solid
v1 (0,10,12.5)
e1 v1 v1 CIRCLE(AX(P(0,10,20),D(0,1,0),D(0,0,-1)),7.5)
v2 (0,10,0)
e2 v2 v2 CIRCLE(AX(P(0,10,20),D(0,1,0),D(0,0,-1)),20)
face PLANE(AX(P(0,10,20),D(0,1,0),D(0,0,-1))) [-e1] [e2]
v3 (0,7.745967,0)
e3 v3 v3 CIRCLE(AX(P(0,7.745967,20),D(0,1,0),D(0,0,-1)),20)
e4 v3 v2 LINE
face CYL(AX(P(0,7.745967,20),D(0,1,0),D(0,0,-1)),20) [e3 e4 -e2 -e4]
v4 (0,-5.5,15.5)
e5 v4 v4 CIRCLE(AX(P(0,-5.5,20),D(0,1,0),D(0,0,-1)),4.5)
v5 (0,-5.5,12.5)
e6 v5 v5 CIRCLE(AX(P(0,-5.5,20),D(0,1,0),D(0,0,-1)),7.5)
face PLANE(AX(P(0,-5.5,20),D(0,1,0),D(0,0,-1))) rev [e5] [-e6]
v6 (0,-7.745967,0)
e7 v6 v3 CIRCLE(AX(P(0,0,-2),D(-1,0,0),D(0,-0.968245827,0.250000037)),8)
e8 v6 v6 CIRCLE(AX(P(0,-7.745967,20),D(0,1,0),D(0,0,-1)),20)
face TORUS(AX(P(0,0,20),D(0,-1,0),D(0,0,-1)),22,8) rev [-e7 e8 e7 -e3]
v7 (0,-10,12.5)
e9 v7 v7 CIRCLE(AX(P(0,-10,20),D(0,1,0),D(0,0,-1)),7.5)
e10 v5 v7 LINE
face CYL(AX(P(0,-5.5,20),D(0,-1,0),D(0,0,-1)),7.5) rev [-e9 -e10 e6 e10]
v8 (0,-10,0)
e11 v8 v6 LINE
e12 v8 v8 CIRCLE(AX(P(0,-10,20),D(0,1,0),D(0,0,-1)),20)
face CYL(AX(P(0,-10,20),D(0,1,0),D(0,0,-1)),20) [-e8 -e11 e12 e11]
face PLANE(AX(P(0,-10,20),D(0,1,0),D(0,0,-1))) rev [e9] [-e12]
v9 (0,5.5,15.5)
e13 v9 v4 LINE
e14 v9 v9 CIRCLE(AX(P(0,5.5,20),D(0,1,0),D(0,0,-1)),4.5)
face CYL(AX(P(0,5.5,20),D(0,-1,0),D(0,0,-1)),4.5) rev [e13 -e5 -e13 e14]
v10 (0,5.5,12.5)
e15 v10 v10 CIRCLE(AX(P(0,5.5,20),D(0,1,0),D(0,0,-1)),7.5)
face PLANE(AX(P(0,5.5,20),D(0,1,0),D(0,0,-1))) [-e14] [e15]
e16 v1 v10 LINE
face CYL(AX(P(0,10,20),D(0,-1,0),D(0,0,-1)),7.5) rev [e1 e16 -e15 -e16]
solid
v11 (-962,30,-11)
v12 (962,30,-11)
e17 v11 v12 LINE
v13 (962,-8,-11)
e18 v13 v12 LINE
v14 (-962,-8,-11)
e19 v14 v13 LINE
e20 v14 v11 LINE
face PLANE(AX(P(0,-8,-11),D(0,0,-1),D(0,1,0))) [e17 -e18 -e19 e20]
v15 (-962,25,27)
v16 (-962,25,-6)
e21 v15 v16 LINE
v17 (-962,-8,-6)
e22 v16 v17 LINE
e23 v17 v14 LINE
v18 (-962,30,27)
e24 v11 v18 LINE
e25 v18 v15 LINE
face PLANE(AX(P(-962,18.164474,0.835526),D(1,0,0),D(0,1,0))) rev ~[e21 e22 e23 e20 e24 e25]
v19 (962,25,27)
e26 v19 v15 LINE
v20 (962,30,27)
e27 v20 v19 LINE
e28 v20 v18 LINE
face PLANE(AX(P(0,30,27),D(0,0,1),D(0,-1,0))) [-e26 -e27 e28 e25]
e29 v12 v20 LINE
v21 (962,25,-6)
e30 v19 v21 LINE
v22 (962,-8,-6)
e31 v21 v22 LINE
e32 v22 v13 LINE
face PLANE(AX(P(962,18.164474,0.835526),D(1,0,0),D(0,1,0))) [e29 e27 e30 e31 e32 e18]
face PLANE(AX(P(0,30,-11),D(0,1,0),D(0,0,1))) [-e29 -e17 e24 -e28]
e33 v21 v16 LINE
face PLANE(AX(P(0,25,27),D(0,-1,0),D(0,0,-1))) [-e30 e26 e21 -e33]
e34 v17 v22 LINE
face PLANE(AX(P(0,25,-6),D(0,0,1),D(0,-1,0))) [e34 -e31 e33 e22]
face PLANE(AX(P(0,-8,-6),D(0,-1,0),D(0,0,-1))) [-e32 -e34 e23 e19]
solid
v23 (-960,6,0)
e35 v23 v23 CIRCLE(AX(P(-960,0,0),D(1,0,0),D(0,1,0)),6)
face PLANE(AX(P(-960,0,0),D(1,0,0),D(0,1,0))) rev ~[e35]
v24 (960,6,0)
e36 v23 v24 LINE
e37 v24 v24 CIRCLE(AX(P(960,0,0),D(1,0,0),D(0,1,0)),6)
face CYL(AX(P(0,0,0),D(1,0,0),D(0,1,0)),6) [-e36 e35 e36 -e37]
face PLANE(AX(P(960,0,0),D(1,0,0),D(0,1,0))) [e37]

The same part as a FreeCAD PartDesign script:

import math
import FreeCAD as App
import Part
import Sketcher
Q = App.Units.Quantity

doc = App.newDocument("Part")
body = doc.addObject("PartDesign::Body", "Body")

# Sketch on YZ plane
sketch1 = body.newObject("Sketcher::SketchObject", "Sketch")
sketch1.AttachmentSupport = (doc.getObject("YZ_Plane"), [""])
sketch1.MapMode = "FlatFace"
sketch1.addGeometry(Part.Circle(App.Vector(0, 0, 0), App.Vector(0, 0, 1), 6), False)
sketch1.addConstraint(Sketcher.Constraint("Coincident", 0, 3, -1, 1))
sketch1.addConstraint(Sketcher.Constraint("Diameter", 0, Q("12 mm")))
pad1 = body.newObject("PartDesign::Pad", "Pad")
pad1.Profile = sketch1
pad1.Length = 1920
pad1.Midplane = True
body2 = doc.addObject("PartDesign::Body", "Body001")

# Sketch on YZ plane
sketch2 = body2.newObject("Sketcher::SketchObject", "Sketch001")
sketch2.AttachmentSupport = (doc.getObject("YZ_Plane001"), [""])
sketch2.MapMode = "FlatFace"
sketch2.addGeometry(Part.LineSegment(App.Vector(5.5, 15.5, 0), App.Vector(-5.5, 15.5, 0)), False)
sketch2.addGeometry(Part.LineSegment(App.Vector(-5.5, 15.5, 0), App.Vector(-5.5, 12.5, 0)), False)
sketch2.addGeometry(Part.LineSegment(App.Vector(-5.5, 12.5, 0), App.Vector(-10, 12.5, 0)), False)
sketch2.addGeometry(Part.LineSegment(App.Vector(-10, 12.5, 0), App.Vector(-10, 0, 0)), False)
sketch2.addGeometry(Part.LineSegment(App.Vector(-10, 0, 0), App.Vector(-7.7, 0, 0)), False)
sketch2.addGeometry(Part.ArcOfCircle(Part.Circle(App.Vector(0, -2, 0), App.Vector(0, 0, 1), 8), math.radians(14), math.radians(166)), False)
sketch2.addGeometry(Part.LineSegment(App.Vector(7.7, 0, 0), App.Vector(10, 0, 0)), False)
sketch2.addGeometry(Part.LineSegment(App.Vector(10, 0, 0), App.Vector(10, 12.5, 0)), False)
sketch2.addGeometry(Part.LineSegment(App.Vector(10, 12.5, 0), App.Vector(5.5, 12.5, 0)), False)
sketch2.addGeometry(Part.LineSegment(App.Vector(5.5, 12.5, 0), App.Vector(5.5, 15.5, 0)), False)
sketch2.addGeometry(Part.LineSegment(App.Vector(-10, 20, 0), App.Vector(10, 20, 0)), True)  # axis
sketch2.addConstraint(Sketcher.Constraint("Coincident", 0, 2, 1, 1))
sketch2.addConstraint(Sketcher.Constraint("Coincident", 1, 2, 2, 1))
sketch2.addConstraint(Sketcher.Constraint("Coincident", 2, 2, 3, 1))
sketch2.addConstraint(Sketcher.Constraint("Coincident", 3, 2, 4, 1))
sketch2.addConstraint(Sketcher.Constraint("Coincident", 4, 2, 5, 2))
sketch2.addConstraint(Sketcher.Constraint("Coincident", 5, 1, 6, 1))
sketch2.addConstraint(Sketcher.Constraint("Coincident", 6, 2, 7, 1))
sketch2.addConstraint(Sketcher.Constraint("Coincident", 7, 2, 8, 1))
sketch2.addConstraint(Sketcher.Constraint("Coincident", 8, 2, 9, 1))
sketch2.addConstraint(Sketcher.Constraint("Coincident", 9, 2, 0, 1))
sketch2.addConstraint(Sketcher.Constraint("Horizontal", 0))
sketch2.addConstraint(Sketcher.Constraint("Vertical", 1))
sketch2.addConstraint(Sketcher.Constraint("Horizontal", 2))
sketch2.addConstraint(Sketcher.Constraint("Vertical", 3))
sketch2.addConstraint(Sketcher.Constraint("Horizontal", 4))
sketch2.addConstraint(Sketcher.Constraint("Horizontal", 6))
sketch2.addConstraint(Sketcher.Constraint("Vertical", 7))
sketch2.addConstraint(Sketcher.Constraint("Horizontal", 8))
sketch2.addConstraint(Sketcher.Constraint("Vertical", 9))
sketch2.addConstraint(Sketcher.Constraint("Horizontal", 10))
sketch2.addConstraint(Sketcher.Constraint("Symmetric", 4, 2, 5, 1, -1, 1))
sketch2.addConstraint(Sketcher.Constraint("Symmetric", 3, 2, 6, 2, -2))
sketch2.addConstraint(Sketcher.Constraint("Symmetric", 1, 2, 8, 2, -2))
sketch2.addConstraint(Sketcher.Constraint("Vertical", 3, 2, 10, 1))
sketch2.addConstraint(Sketcher.Constraint("Vertical", 7, 2, 10, 2))
sketch2.addConstraint(Sketcher.Constraint("Radius", 5, Q("8 mm")))
sketch2.addConstraint(Sketcher.Constraint("DistanceX", 0, 2, 0, 1, Q("11 mm")))
sketch2.addConstraint(Sketcher.Constraint("DistanceX", 10, 1, 10, 2, Q("20 mm")))
sketch2.addConstraint(Sketcher.Constraint("DistanceY", 1, 2, 1, 1, Q("3 mm")))
sketch2.addConstraint(Sketcher.Constraint("DistanceY", 3, 2, 3, 1, Q("12.5 mm")))
sketch2.addConstraint(Sketcher.Constraint("DistanceY", 5, 3, -1, 1, Q("2 mm")))
sketch2.addConstraint(Sketcher.Constraint("DistanceY", -1, 1, 10, 1, Q("20 mm")))
revolution = body2.newObject("PartDesign::Revolution", "Revolution")
revolution.Profile = sketch2
revolution.ReferenceAxis = (sketch2, ["Axis0"])
revolution.Angle = 360
body3 = doc.addObject("PartDesign::Body", "Body002")

# Sketch on YZ plane
sketch3 = body3.newObject("Sketcher::SketchObject", "Sketch002")
sketch3.AttachmentSupport = (doc.getObject("YZ_Plane002"), [""])
sketch3.MapMode = "FlatFace"
sketch3.addGeometry(Part.LineSegment(App.Vector(25, -6, 0), App.Vector(-8, -6, 0)), False)
sketch3.addGeometry(Part.LineSegment(App.Vector(-8, -6, 0), App.Vector(-8, -11, 0)), False)
sketch3.addGeometry(Part.LineSegment(App.Vector(-8, -11, 0), App.Vector(30, -11, 0)), False)
sketch3.addGeometry(Part.LineSegment(App.Vector(30, -11, 0), App.Vector(30, 27, 0)), False)
sketch3.addGeometry(Part.LineSegment(App.Vector(30, 27, 0), App.Vector(25, 27, 0)), False)
sketch3.addGeometry(Part.LineSegment(App.Vector(25, 27, 0), App.Vector(25, -6, 0)), False)
sketch3.addConstraint(Sketcher.Constraint("Coincident", 0, 2, 1, 1))
sketch3.addConstraint(Sketcher.Constraint("Coincident", 1, 2, 2, 1))
sketch3.addConstraint(Sketcher.Constraint("Coincident", 2, 2, 3, 1))
sketch3.addConstraint(Sketcher.Constraint("Coincident", 3, 2, 4, 1))
sketch3.addConstraint(Sketcher.Constraint("Coincident", 4, 2, 5, 1))
sketch3.addConstraint(Sketcher.Constraint("Coincident", 5, 2, 0, 1))
sketch3.addConstraint(Sketcher.Constraint("Horizontal", 0))
sketch3.addConstraint(Sketcher.Constraint("Vertical", 1))
sketch3.addConstraint(Sketcher.Constraint("Horizontal", 2))
sketch3.addConstraint(Sketcher.Constraint("Vertical", 3))
sketch3.addConstraint(Sketcher.Constraint("Horizontal", 4))
sketch3.addConstraint(Sketcher.Constraint("Vertical", 5))
sketch3.addConstraint(Sketcher.Constraint("Equal", 4, 1))
sketch3.addConstraint(Sketcher.Constraint("Equal", 2, 3))
sketch3.addConstraint(Sketcher.Constraint("DistanceX", 0, 2, 0, 1, Q("33 mm")))
sketch3.addConstraint(Sketcher.Constraint("DistanceX", 2, 1, 2, 2, Q("38 mm")))
sketch3.addConstraint(Sketcher.Constraint("DistanceX", 0, 2, -1, 1, Q("8 mm")))
sketch3.addConstraint(Sketcher.Constraint("DistanceY", 0, 2, -1, 1, Q("6 mm")))
pad2 = body3.newObject("PartDesign::Pad", "Pad001")
pad2.Profile = sketch3
pad2.Length = 1924
pad2.Midplane = True

doc.recompute()
